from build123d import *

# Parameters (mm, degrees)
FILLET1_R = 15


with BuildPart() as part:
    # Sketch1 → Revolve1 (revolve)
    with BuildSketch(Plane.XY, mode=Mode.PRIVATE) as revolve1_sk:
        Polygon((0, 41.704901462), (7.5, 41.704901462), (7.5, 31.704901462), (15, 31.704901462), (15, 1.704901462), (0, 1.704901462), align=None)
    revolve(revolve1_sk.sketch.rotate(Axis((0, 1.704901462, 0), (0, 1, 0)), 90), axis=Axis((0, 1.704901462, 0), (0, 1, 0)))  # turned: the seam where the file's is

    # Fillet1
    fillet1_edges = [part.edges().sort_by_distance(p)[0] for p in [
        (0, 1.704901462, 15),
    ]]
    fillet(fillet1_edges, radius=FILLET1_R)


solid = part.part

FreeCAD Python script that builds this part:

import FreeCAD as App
import Part
import Sketcher


def edges_at(feature, points):
    """Names of the edges that pass closest to the given points."""
    edges = feature.Shape.Edges
    near = lambda p: min(range(len(edges)), key=lambda i: edges[i].distToShape(Part.Vertex(*p))[0])
    return sorted({f"Edge{near(p) + 1}" for p in points})

doc = App.newDocument("Part")
body = doc.addObject("PartDesign::Body", "Body")

sketch1 = doc.addObject("Sketcher::SketchObject", "Sketch")
body.addObject(sketch1)
sketch1.AttachmentSupport = (doc.XY_Plane, [""])
sketch1.MapMode = "FlatFace"
sketch1.addGeometry([
    Part.LineSegment(App.Vector(8, 42, 0), App.Vector(0, 42, 0)),
    Part.LineSegment(App.Vector(0, 42, 0), App.Vector(0, 2, 0)),
    Part.LineSegment(App.Vector(0, 2, 0), App.Vector(15, 2, 0)),
    Part.LineSegment(App.Vector(15, 2, 0), App.Vector(15, 32, 0)),
    Part.LineSegment(App.Vector(15, 32, 0), App.Vector(8, 32, 0)),
    Part.LineSegment(App.Vector(8, 32, 0), App.Vector(8, 42, 0)),
], False)
sketch1.addConstraint([
    Sketcher.Constraint("Coincident", 0, 2, 1, 1),
    Sketcher.Constraint("Coincident", 1, 2, 2, 1),
    Sketcher.Constraint("Coincident", 2, 2, 3, 1),
    Sketcher.Constraint("Coincident", 3, 2, 4, 1),
    Sketcher.Constraint("Coincident", 4, 2, 5, 1),
    Sketcher.Constraint("Coincident", 5, 2, 0, 1),
    Sketcher.Constraint("Horizontal", 0),
    Sketcher.Constraint("Vertical", 1),
    Sketcher.Constraint("Horizontal", 2),
    Sketcher.Constraint("Vertical", 3),
    Sketcher.Constraint("Horizontal", 4),
    Sketcher.Constraint("Vertical", 5),
    Sketcher.Constraint("PointOnObject", 0, 2, -2),
    Sketcher.Constraint("Equal", 0, 4),
    Sketcher.Constraint("DistanceX", 2, 1, 2, 2, 15.0),
    Sketcher.Constraint("DistanceY", 1, 2, 1, 1, 40.0),
    Sketcher.Constraint("DistanceY", 3, 1, 3, 2, 30.0),
    Sketcher.Constraint("DistanceY", -1, 1, 0, 2, 41.704901),
])
revolution = doc.addObject("PartDesign::Revolution", "Revolution")
body.addObject(revolution)
revolution.Profile = sketch1
revolution.ReferenceAxis = (sketch1, ["V_Axis"])
revolution.Angle = 360
doc.recompute()

fillet = doc.addObject("PartDesign::Fillet", "Fillet")
body.addObject(fillet)
fillet.Base = (revolution, edges_at(revolution, [(0, 1.705, 15)]))
fillet.Radius = 15

doc.recompute()
